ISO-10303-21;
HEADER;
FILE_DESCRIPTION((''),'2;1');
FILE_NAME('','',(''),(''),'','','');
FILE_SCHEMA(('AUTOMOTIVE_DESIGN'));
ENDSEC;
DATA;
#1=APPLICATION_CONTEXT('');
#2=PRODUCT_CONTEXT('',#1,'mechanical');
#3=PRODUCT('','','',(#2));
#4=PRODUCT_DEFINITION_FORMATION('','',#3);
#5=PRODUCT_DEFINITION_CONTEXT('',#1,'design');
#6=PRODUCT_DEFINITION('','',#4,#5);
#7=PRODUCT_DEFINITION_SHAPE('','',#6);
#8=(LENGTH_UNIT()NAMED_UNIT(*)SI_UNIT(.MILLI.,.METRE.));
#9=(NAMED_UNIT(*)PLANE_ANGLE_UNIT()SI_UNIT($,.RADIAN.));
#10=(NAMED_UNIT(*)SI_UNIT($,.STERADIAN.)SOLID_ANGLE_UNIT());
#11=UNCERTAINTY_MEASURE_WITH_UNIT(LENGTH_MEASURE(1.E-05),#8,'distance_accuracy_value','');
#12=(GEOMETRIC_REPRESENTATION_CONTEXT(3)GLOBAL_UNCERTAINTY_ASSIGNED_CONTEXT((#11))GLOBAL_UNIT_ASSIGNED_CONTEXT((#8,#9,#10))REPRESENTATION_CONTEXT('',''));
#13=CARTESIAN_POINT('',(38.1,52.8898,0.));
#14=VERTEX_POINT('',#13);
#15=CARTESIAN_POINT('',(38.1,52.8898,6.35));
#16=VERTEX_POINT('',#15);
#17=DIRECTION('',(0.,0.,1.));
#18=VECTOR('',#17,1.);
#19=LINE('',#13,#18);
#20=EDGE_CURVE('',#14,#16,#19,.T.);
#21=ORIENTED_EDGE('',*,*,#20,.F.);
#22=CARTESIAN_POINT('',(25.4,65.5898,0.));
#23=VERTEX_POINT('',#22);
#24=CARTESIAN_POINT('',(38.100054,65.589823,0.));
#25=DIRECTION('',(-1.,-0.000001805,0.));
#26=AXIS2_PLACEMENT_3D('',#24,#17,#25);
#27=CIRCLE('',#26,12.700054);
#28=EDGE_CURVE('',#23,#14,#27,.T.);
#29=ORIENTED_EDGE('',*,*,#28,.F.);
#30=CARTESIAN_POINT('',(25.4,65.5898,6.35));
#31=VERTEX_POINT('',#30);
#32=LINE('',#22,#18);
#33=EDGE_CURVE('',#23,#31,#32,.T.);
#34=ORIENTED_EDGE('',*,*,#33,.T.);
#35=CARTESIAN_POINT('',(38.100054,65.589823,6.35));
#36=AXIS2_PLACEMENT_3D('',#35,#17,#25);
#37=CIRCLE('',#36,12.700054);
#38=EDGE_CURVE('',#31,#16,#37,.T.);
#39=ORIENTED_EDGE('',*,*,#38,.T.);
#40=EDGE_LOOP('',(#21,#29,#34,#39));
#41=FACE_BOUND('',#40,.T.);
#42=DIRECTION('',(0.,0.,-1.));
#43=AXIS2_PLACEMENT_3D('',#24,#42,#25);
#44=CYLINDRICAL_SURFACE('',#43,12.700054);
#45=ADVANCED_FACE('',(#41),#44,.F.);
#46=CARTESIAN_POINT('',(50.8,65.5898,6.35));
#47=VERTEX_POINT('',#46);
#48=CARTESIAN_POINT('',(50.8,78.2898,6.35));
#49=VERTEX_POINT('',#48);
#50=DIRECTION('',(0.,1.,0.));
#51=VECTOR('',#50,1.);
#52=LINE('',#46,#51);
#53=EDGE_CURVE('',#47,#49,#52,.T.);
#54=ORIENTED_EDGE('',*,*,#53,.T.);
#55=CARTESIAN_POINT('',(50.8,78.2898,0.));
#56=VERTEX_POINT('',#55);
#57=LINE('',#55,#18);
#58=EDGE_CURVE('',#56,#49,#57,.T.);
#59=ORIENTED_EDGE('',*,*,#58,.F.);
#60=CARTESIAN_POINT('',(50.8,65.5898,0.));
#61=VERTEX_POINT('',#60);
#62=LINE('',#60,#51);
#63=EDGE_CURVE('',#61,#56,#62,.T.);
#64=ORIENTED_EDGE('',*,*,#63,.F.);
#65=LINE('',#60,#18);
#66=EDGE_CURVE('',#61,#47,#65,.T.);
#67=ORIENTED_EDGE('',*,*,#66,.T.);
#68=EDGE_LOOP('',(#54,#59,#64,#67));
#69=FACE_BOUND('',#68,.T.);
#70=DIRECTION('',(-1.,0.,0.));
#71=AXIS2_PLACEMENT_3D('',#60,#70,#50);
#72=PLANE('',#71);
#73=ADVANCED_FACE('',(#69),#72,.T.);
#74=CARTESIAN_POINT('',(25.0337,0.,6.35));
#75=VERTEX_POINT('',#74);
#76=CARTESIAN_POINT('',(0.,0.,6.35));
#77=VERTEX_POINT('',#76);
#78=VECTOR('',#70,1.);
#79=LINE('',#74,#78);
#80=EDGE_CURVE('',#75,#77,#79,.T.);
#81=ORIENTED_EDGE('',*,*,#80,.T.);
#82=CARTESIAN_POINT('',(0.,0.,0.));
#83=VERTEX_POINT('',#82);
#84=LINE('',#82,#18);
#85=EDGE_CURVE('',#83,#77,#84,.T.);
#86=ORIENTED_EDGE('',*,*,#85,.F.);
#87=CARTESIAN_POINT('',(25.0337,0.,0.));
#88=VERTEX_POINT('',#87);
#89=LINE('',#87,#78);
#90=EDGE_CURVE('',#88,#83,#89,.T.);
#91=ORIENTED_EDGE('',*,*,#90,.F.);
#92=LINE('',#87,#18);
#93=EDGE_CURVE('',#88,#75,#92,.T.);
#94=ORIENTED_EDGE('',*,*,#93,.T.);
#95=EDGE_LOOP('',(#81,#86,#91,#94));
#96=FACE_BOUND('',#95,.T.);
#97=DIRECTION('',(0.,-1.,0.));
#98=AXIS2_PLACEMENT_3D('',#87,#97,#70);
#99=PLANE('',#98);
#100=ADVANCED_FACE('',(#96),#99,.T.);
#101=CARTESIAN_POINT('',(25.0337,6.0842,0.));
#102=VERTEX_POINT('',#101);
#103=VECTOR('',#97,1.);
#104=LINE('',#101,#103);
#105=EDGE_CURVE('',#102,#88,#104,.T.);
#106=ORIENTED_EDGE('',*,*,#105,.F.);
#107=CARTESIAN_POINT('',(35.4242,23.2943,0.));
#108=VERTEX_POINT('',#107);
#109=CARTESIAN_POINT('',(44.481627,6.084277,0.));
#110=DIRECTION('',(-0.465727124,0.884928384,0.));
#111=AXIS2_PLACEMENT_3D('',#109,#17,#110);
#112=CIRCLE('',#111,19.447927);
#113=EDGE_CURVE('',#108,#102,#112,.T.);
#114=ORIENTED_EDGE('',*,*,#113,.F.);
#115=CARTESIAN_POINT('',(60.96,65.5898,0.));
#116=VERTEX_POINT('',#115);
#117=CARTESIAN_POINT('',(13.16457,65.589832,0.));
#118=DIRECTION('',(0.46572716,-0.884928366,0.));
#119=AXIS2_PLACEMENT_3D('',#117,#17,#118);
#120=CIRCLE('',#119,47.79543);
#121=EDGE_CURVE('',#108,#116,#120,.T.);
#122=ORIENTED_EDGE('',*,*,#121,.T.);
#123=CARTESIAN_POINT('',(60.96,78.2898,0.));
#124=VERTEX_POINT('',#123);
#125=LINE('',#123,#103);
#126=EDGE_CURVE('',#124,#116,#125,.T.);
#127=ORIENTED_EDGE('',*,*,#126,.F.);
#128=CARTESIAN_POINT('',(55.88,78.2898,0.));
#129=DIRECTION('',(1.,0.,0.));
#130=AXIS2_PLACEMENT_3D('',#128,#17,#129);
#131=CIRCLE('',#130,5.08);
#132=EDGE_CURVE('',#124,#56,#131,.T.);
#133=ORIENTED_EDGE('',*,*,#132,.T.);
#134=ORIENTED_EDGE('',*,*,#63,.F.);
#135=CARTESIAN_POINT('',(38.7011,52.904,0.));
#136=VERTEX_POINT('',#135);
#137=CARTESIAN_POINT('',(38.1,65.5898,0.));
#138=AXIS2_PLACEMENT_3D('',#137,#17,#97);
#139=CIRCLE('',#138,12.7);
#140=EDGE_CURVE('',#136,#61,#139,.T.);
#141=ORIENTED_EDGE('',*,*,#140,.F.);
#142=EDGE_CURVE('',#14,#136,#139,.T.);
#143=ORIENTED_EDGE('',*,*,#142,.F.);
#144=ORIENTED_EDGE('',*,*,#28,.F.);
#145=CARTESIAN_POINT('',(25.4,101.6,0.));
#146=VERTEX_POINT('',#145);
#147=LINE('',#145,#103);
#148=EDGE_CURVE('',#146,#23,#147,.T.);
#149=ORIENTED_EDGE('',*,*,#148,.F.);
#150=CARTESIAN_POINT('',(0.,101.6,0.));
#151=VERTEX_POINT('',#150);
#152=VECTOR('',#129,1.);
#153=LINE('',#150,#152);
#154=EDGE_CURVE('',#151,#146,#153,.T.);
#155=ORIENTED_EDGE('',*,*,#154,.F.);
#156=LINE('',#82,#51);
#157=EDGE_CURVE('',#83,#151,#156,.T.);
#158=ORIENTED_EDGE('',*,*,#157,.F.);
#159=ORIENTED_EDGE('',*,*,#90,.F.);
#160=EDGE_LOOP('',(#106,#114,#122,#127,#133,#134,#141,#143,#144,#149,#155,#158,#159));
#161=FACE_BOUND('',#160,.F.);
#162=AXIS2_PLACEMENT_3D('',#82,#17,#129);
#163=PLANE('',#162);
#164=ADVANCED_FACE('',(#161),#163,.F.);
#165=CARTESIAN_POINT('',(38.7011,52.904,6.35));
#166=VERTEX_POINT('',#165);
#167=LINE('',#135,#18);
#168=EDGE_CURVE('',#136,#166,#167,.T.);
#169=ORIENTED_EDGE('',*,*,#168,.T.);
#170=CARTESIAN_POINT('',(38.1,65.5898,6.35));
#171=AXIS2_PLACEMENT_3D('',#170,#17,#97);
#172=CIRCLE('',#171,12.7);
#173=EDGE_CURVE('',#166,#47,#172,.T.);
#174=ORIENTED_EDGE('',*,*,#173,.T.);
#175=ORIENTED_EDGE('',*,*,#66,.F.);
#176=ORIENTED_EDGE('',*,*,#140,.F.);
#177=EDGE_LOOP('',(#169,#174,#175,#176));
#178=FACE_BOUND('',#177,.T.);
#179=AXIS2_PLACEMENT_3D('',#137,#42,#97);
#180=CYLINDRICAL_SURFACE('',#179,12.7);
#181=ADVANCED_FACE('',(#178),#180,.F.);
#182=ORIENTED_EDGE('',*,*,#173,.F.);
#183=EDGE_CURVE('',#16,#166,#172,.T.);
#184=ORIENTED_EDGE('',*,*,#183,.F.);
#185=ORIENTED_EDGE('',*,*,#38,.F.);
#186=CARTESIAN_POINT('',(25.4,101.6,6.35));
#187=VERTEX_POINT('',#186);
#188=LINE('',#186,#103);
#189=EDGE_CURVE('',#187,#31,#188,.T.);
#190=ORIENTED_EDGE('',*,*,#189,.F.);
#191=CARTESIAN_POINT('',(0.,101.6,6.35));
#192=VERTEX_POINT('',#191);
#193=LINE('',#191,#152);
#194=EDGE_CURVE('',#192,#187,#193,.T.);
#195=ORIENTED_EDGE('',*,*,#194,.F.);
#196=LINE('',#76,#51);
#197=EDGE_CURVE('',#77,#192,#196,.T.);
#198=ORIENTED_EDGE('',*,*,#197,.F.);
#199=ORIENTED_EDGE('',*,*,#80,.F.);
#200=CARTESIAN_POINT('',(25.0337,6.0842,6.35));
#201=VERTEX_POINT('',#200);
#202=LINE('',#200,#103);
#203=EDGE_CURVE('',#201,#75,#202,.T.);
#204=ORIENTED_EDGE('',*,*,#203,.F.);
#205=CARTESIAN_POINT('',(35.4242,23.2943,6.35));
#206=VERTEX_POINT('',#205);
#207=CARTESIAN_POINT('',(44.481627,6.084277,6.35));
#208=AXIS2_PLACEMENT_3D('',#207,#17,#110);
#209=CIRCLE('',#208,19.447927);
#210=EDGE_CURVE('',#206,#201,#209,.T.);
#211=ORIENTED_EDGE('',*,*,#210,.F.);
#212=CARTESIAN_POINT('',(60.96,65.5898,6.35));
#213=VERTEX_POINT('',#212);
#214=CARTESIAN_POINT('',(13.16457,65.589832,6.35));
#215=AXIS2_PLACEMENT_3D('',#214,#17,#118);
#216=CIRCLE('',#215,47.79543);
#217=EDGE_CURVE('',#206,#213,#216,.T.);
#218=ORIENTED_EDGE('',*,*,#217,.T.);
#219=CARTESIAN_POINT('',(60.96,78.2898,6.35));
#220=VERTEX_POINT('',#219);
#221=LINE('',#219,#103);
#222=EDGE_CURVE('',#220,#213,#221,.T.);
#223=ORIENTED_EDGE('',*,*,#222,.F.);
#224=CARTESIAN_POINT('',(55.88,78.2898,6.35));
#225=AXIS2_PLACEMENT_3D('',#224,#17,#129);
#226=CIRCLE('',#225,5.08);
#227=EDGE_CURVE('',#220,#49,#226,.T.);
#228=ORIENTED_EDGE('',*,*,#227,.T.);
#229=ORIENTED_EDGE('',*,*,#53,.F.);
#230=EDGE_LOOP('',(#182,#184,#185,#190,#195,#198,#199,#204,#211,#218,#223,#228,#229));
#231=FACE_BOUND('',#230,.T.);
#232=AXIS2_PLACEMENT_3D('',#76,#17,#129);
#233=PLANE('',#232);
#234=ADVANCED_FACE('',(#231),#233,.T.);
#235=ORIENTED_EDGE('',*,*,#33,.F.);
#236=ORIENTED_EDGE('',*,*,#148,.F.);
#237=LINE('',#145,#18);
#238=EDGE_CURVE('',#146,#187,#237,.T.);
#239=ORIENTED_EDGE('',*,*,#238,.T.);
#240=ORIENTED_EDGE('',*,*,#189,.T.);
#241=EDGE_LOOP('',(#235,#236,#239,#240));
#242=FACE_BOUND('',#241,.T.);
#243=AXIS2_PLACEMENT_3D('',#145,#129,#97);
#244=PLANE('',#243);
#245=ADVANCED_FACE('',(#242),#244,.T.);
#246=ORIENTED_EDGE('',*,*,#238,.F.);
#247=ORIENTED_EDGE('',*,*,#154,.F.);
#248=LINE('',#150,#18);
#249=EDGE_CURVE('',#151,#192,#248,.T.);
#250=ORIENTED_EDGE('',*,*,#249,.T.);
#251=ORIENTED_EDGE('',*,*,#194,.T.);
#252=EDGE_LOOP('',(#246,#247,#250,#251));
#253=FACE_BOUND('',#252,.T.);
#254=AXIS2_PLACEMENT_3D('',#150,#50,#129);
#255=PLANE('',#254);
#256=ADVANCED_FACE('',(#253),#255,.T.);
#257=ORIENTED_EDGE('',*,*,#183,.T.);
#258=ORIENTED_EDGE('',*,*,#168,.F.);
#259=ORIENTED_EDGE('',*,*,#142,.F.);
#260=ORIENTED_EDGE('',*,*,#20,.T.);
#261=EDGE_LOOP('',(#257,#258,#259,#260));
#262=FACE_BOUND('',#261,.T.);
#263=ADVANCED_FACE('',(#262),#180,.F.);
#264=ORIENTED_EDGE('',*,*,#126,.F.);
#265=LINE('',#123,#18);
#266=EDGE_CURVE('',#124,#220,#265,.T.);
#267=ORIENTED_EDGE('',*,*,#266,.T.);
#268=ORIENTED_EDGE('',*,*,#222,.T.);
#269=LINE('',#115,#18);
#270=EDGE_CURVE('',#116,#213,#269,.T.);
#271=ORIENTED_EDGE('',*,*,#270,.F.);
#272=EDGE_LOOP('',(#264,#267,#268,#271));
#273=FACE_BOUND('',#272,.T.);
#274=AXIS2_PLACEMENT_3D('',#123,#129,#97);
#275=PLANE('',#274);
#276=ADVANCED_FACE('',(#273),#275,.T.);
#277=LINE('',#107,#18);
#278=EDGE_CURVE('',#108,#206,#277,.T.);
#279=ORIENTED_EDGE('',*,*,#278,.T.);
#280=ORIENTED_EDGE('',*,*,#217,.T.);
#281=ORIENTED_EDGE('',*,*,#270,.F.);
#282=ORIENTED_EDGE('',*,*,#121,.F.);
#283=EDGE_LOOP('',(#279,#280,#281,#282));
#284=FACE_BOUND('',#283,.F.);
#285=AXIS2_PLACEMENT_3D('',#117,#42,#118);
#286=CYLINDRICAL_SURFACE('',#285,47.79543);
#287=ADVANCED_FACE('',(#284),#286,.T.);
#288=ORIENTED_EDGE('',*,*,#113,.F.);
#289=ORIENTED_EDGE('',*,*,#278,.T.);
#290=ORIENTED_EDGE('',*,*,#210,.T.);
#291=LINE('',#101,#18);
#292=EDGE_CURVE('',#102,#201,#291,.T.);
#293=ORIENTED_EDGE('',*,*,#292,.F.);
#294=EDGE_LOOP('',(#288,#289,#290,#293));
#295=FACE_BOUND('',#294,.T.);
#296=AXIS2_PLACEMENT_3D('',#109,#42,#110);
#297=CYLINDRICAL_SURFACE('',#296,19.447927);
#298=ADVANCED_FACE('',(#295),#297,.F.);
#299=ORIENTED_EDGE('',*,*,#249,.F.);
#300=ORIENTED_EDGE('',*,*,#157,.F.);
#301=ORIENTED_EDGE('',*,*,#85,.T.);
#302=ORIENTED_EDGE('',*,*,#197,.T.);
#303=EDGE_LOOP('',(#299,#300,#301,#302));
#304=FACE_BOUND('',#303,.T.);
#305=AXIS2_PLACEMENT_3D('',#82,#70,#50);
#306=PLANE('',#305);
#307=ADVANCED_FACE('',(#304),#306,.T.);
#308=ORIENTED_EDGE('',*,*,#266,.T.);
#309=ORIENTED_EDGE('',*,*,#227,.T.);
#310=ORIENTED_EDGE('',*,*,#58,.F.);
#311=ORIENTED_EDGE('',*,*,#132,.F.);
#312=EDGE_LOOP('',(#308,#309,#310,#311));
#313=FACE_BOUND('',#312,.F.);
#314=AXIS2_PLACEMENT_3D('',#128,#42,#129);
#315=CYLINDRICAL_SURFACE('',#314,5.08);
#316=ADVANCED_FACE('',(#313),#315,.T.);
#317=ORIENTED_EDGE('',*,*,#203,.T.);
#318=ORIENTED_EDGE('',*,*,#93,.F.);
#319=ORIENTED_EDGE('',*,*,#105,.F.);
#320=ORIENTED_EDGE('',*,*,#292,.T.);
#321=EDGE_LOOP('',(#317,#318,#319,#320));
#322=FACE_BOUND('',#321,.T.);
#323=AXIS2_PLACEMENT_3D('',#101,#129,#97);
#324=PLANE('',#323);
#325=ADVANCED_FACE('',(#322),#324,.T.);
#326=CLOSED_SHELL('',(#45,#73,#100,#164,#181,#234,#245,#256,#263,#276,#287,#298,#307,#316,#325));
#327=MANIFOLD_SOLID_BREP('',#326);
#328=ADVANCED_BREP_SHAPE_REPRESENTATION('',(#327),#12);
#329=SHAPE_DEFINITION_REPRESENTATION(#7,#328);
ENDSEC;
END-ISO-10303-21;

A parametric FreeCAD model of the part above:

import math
import FreeCAD as App
import Part
import Sketcher
Q = App.Units.Quantity

doc = App.newDocument("Part")
body = doc.addObject("PartDesign::Body", "Body")

sketch1 = body.newObject("Sketcher::SketchObject", "Sketch")
sketch1.AttachmentSupport = (doc.getObject("XY_Plane"), [""])
sketch1.MapMode = "FlatFace"
sketch1.addGeometry([
    Part.LineSegment(App.Vector(0, 101.6, 0), App.Vector(0, 0, 0)),
    Part.LineSegment(App.Vector(0, 0, 0), App.Vector(25.0337, 0, 0)),
    Part.LineSegment(App.Vector(25.0337, 0, 0), App.Vector(25.0337, 6.0842, 0)),
    Part.ArcOfCircle(Part.Circle(App.Vector(44.4817, 6.0842, 0), App.Vector(0, 0, 1), 19.448029), math.radians(117.757374), math.radians(180)),
    Part.ArcOfCircle(Part.Circle(App.Vector(13.1646, 65.5898, 0), App.Vector(0, 0, 1), 47.795388), math.radians(-62.242721), math.radians(0)),
    Part.LineSegment(App.Vector(60.96, 65.5898, 0), App.Vector(60.96, 78.2898, 0)),
    Part.ArcOfCircle(Part.Circle(App.Vector(55.88, 78.2898, 0), App.Vector(0, 0, 1), 5.08), math.radians(0), math.radians(180)),
    Part.LineSegment(App.Vector(50.8, 78.2898, 0), App.Vector(50.8, 65.5898, 0)),
    Part.ArcOfCircle(Part.Circle(App.Vector(38.1, 65.5898, 0), App.Vector(0, 0, 1), 12.7), math.radians(-90), math.radians(0)),
    Part.ArcOfCircle(Part.Circle(App.Vector(38.1, 65.5898, 0), App.Vector(0, 0, 1), 12.7), math.radians(180), math.radians(270)),
    Part.LineSegment(App.Vector(25.4, 65.5898, 0), App.Vector(25.4, 101.6, 0)),
    Part.LineSegment(App.Vector(25.4, 101.6, 0), App.Vector(0, 101.6, 0)),
], False)
sketch1.addConstraint([
    Sketcher.Constraint("Coincident", 0, 2, 1, 1),
    Sketcher.Constraint("Coincident", 1, 2, 2, 1),
    Sketcher.Constraint("Tangent", 2, 2, 3, 2),
    Sketcher.Constraint("Tangent", 3, 1, 4, 1),
    Sketcher.Constraint("Tangent", 4, 2, 5, 1),
    Sketcher.Constraint("Tangent", 5, 2, 6, 1),
    Sketcher.Constraint("Tangent", 6, 2, 7, 1),
    Sketcher.Constraint("Tangent", 7, 2, 8, 2),
    Sketcher.Constraint("Tangent", 8, 1, 9, 2),
    Sketcher.Constraint("Tangent", 9, 1, 10, 1),
    Sketcher.Constraint("Coincident", 10, 2, 11, 1),
    Sketcher.Constraint("Coincident", 11, 2, 0, 1),
    Sketcher.Constraint("Vertical", 0),
    Sketcher.Constraint("Horizontal", 1),
    Sketcher.Constraint("Vertical", 2),
    Sketcher.Constraint("Vertical", 5),
    Sketcher.Constraint("Vertical", 7),
    Sketcher.Constraint("Vertical", 10),
    Sketcher.Constraint("Horizontal", 11),
    Sketcher.Constraint("Coincident", 0, 2, -1, 1),
    Sketcher.Constraint("Equal", 8, 9),
    Sketcher.Constraint("Horizontal", 4, 3, 8, 3),
    Sketcher.Constraint("Vertical", 9, 3, 8, 1),
    Sketcher.Constraint("Radius", 6, Q("0.2 in")),
    Sketcher.Constraint("Radius", 8, Q("0.5 in")),
    Sketcher.Constraint("DistanceX", 11, 2, 11, 1, Q("1 in")),
    Sketcher.Constraint("DistanceY", 0, 2, 0, 1, Q("4 in")),
    Sketcher.Constraint("DistanceY", 5, 1, 5, 2, Q("0.5 in")),
    Sketcher.Constraint("Radius", 4, Q("1.8817 in")),
    Sketcher.Constraint("Radius", 3, Q("19.448 mm")),
    Sketcher.Constraint("DistanceX", 1, 1, 1, 2, Q("25.0337 mm")),
    Sketcher.Constraint("DistanceY", 2, 1, 2, 2, Q("6.0842 mm")),
])
pad1 = body.newObject("PartDesign::Pad", "Pad")
pad1.Profile = sketch1
pad1.Length = Q("0.25 in")

doc.recompute()
